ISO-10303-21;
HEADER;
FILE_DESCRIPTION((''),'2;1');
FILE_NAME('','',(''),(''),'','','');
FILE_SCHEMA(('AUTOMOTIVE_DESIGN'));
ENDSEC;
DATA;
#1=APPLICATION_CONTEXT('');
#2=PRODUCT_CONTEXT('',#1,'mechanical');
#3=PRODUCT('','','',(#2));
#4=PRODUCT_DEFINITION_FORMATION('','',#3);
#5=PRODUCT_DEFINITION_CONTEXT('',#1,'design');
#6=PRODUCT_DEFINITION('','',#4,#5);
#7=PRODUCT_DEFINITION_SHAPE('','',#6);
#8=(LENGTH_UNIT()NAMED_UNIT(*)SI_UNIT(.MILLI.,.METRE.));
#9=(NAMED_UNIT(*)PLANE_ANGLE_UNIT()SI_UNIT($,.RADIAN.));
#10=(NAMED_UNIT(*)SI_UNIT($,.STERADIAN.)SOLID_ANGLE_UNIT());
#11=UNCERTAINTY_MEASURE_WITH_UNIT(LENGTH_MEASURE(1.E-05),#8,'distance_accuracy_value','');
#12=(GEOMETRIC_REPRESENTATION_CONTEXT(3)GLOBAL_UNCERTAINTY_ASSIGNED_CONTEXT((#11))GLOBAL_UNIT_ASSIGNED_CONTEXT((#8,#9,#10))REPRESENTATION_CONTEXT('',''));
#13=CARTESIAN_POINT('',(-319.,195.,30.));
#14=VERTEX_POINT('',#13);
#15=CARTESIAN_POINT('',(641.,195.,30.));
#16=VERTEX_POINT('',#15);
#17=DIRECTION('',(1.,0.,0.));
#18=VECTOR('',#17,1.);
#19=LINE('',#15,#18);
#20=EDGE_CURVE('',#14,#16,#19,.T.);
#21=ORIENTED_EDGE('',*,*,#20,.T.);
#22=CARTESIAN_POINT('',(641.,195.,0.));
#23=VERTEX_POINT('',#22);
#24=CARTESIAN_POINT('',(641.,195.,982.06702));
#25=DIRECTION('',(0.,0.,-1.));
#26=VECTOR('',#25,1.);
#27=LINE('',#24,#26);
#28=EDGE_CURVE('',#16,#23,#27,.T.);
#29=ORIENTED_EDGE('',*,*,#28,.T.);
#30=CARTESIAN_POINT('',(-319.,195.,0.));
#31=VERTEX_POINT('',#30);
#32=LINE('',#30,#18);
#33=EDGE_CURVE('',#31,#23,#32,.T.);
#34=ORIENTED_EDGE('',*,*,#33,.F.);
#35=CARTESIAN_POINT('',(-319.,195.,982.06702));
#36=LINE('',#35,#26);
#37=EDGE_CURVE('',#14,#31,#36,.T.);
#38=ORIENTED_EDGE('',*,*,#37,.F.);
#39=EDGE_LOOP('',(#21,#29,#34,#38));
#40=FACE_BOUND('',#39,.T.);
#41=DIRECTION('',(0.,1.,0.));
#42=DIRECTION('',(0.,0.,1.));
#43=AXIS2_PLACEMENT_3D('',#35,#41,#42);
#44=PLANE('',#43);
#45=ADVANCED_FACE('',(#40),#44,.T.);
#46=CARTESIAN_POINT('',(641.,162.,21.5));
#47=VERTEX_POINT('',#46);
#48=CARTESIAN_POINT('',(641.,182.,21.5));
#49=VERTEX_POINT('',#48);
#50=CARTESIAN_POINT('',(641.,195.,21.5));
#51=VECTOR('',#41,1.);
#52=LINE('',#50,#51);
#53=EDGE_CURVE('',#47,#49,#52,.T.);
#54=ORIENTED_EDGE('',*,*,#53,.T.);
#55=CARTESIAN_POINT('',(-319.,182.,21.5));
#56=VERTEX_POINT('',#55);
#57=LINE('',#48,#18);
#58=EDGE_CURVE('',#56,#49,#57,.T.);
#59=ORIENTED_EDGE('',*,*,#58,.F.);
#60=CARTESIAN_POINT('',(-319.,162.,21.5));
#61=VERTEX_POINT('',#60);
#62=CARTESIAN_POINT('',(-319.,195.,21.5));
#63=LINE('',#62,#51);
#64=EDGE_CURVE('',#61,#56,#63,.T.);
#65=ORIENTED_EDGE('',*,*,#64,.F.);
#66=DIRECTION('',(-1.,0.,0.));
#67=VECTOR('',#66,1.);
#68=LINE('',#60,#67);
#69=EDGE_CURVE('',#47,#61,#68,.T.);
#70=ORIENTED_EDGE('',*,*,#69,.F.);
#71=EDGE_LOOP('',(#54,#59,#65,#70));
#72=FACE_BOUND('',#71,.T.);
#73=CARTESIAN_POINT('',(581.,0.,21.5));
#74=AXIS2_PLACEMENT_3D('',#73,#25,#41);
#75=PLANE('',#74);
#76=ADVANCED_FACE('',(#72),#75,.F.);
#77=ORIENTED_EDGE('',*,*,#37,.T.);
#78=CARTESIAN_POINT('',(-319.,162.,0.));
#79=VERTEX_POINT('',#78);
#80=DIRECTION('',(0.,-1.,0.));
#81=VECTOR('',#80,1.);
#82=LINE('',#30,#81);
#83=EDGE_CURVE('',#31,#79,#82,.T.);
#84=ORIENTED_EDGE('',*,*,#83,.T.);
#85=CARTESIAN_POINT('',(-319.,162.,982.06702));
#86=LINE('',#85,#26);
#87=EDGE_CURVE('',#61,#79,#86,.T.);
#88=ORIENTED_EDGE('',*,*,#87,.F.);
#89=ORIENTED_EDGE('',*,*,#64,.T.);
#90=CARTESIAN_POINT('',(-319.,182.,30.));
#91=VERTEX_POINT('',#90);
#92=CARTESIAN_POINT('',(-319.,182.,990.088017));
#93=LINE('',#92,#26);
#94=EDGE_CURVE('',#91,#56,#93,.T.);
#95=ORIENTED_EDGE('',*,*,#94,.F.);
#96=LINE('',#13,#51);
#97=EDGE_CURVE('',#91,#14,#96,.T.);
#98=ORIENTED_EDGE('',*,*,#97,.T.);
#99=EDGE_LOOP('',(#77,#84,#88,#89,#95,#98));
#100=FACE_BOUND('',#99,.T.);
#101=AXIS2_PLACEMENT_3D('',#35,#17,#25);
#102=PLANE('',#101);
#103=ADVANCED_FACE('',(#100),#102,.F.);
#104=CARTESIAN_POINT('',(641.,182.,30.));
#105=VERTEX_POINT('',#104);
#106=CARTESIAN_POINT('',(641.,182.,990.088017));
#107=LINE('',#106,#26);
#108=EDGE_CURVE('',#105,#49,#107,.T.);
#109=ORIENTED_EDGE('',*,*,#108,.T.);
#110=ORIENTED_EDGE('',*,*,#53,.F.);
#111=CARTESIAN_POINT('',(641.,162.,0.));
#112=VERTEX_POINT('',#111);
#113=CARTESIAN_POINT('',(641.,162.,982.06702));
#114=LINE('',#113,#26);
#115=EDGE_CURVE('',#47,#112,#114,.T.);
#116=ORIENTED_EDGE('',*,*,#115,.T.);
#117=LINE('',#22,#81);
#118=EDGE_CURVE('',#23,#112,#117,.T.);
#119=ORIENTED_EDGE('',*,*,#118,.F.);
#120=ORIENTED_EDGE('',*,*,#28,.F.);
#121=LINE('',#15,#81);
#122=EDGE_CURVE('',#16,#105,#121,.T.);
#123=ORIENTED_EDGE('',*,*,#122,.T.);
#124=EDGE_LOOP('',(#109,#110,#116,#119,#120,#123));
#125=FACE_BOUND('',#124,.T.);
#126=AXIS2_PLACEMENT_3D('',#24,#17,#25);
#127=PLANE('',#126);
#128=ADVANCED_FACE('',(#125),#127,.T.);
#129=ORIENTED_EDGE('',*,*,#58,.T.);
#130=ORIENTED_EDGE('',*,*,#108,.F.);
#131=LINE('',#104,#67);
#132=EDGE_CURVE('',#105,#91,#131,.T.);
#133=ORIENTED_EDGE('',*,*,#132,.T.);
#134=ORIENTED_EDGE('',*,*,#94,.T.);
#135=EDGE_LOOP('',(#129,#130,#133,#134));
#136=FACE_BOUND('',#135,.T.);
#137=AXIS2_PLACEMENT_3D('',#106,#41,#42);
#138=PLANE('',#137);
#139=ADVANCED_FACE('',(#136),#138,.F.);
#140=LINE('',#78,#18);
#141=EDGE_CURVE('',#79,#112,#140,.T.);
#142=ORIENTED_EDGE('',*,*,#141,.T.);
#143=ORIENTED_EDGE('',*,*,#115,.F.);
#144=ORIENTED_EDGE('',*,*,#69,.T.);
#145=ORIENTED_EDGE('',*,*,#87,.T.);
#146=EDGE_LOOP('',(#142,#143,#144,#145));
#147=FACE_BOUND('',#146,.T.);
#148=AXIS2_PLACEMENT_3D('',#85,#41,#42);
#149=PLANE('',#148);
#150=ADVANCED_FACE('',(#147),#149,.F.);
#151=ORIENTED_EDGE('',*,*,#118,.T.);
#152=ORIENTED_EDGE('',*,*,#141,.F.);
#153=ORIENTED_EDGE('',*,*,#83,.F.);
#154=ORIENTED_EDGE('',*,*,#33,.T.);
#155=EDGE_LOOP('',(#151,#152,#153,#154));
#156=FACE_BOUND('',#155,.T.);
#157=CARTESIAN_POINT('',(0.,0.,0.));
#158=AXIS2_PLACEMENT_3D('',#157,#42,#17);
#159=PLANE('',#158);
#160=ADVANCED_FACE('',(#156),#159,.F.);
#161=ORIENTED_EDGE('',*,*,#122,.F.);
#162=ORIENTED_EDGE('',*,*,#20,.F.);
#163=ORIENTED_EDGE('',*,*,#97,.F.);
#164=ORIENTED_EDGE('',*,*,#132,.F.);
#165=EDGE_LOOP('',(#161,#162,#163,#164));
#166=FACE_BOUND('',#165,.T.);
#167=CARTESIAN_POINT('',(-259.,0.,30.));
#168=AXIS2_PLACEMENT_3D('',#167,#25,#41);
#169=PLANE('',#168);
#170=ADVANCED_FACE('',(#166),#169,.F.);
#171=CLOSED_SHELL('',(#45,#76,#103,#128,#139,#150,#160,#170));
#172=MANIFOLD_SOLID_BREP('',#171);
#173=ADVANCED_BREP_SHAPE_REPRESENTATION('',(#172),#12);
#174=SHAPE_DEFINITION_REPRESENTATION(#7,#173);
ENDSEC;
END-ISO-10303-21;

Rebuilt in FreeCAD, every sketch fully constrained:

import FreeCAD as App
import Part
import Sketcher
from FreeCAD import Vector
Q = App.Units.Quantity


def add_polygon(sketch, points):
    """Adds a closed chain of lines whose ends are joined by coincident constraints."""
    first, n = sketch.GeometryCount, len(points)
    for a, b in zip(points, points[1:] + points[:1]):
        sketch.addGeometry(Part.LineSegment(App.Vector(*a, 0), App.Vector(*b, 0)), False)
    for i in range(n):
        sketch.addConstraint(Sketcher.Constraint("Coincident", first + i, 2, first + (i + 1) % n, 1))

doc = App.newDocument("Part")
params = doc.addObject("Spreadsheet::Sheet", "Params")
for row, (alias, value) in enumerate([
    ("sketch1_width", "960 mm"),
    ("sketch1_height", "33 mm"),
    ("pad1_length", "21.5 mm"),
    ("sketch2_width", "960 mm"),
    ("sketch2_height", "13 mm"),
    ("pad2_length", "8.5 mm"),
], start=1):
    params.set(f"A{row}", alias)
    params.set(f"B{row}", "=" + value)
    params.setAlias(f"B{row}", alias)

body = doc.addObject("PartDesign::Body", "Body")

# Sketch on XY plane
sketch1 = body.newObject("Sketcher::SketchObject", "Sketch")
sketch1.AttachmentSupport = (doc.getObject("XY_Plane"), [""])
sketch1.MapMode = "FlatFace"
add_polygon(sketch1, [(-319, 195), (-319, 162), (641, 162), (641, 195)])  # lines 0-3
sketch1.addConstraint([
    Sketcher.Constraint("Vertical", 0),
    Sketcher.Constraint("Horizontal", 1),
    Sketcher.Constraint("Vertical", 2),
    Sketcher.Constraint("Horizontal", 3),
    Sketcher.Constraint("DistanceX", 1, 1, 1, 2, Q("960 mm")),
    Sketcher.Constraint("DistanceY", 0, 2, 0, 1, Q("33 mm")),
    Sketcher.Constraint("DistanceX", 0, 2, -1, 1, Q("319 mm")),
    Sketcher.Constraint("DistanceY", -1, 1, 0, 2, Q("162 mm")),
])
sketch1.setExpression("Constraints[8]", "Params.sketch1_width")
sketch1.setExpression("Constraints[9]", "Params.sketch1_height")
pad1 = body.newObject("PartDesign::Pad", "Pad")
pad1.Profile = sketch1
pad1.setExpression("Length", "Params.pad1_length")

# Sketch on XY plane
sketch2 = body.newObject("Sketcher::SketchObject", "Sketch001")
sketch2.AttachmentSupport = (doc.getObject("XY_Plane"), [""])
sketch2.MapMode = "FlatFace"
sketch2.AttachmentOffset = App.Placement(Vector(0, 0, 21.5), App.Rotation())
add_polygon(sketch2, [(-319, 195), (-319, 182), (641, 182), (641, 195)])  # lines 0-3
sketch2.addConstraint([
    Sketcher.Constraint("Vertical", 0),
    Sketcher.Constraint("Horizontal", 1),
    Sketcher.Constraint("Vertical", 2),
    Sketcher.Constraint("Horizontal", 3),
    Sketcher.Constraint("DistanceX", 1, 1, 1, 2, Q("960 mm")),
    Sketcher.Constraint("DistanceY", 0, 2, 0, 1, Q("13 mm")),
    Sketcher.Constraint("DistanceX", 0, 2, -1, 1, Q("319 mm")),
    Sketcher.Constraint("DistanceY", -1, 1, 0, 2, Q("182 mm")),
])
sketch2.setExpression("Constraints[8]", "Params.sketch2_width")
sketch2.setExpression("Constraints[9]", "Params.sketch2_height")
pad2 = body.newObject("PartDesign::Pad", "Pad001")
pad2.Profile = sketch2
pad2.setExpression("Length", "Params.pad2_length")

doc.recompute()
